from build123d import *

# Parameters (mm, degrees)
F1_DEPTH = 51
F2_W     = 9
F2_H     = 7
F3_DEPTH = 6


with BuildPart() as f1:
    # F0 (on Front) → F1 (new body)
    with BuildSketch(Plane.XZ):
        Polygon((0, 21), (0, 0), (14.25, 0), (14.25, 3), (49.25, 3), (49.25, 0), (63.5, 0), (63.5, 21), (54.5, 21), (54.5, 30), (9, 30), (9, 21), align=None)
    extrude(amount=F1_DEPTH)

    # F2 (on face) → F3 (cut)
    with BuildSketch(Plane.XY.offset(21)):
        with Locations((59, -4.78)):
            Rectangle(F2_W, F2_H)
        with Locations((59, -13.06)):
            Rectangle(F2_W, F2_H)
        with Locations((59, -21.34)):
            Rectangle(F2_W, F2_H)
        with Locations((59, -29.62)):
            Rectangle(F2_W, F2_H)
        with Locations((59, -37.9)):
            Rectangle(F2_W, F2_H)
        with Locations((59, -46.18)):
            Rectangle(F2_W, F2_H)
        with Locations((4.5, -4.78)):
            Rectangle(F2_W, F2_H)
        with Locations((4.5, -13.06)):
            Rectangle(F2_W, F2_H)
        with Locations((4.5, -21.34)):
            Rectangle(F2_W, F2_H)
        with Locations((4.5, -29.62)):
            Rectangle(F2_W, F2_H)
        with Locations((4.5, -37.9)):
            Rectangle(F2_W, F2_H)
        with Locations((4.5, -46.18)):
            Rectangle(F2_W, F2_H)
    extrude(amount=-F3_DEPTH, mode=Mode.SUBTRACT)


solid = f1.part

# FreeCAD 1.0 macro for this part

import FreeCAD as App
import Part
import Sketcher

V = App.Vector

doc = App.newDocument("Part")
body = doc.addObject("PartDesign::Body", "Body")

# Sketch on XZ plane
sketch1 = body.newObject("Sketcher::SketchObject", "Sketch")
sketch1.AttachmentSupport = (doc.getObject("XZ_Plane"), [""])
sketch1.MapMode = "FlatFace"
sketch1.addGeometry(Part.LineSegment(V(0, 21, 0), V(0, 0, 0)), False)
sketch1.addGeometry(Part.LineSegment(V(0, 0, 0), V(14.25, 0, 0)), False)
sketch1.addGeometry(Part.LineSegment(V(14.25, 0, 0), V(14.25, 3, 0)), False)
sketch1.addGeometry(Part.LineSegment(V(14.25, 3, 0), V(49.25, 3, 0)), False)
sketch1.addGeometry(Part.LineSegment(V(49.25, 3, 0), V(49.25, 0, 0)), False)
sketch1.addGeometry(Part.LineSegment(V(49.25, 0, 0), V(63.5, 0, 0)), False)
sketch1.addGeometry(Part.LineSegment(V(63.5, 0, 0), V(63.5, 21, 0)), False)
sketch1.addGeometry(Part.LineSegment(V(63.5, 21, 0), V(54.5, 21, 0)), False)
sketch1.addGeometry(Part.LineSegment(V(54.5, 21, 0), V(54.5, 30, 0)), False)
sketch1.addGeometry(Part.LineSegment(V(54.5, 30, 0), V(9, 30, 0)), False)
sketch1.addGeometry(Part.LineSegment(V(9, 30, 0), V(9, 21, 0)), False)
sketch1.addGeometry(Part.LineSegment(V(9, 21, 0), V(0, 21, 0)), False)
sketch1.addConstraint(Sketcher.Constraint("Coincident", 0, 2, 1, 1))
sketch1.addConstraint(Sketcher.Constraint("Coincident", 1, 2, 2, 1))
sketch1.addConstraint(Sketcher.Constraint("Coincident", 2, 2, 3, 1))
sketch1.addConstraint(Sketcher.Constraint("Coincident", 3, 2, 4, 1))
sketch1.addConstraint(Sketcher.Constraint("Coincident", 4, 2, 5, 1))
sketch1.addConstraint(Sketcher.Constraint("Coincident", 5, 2, 6, 1))
sketch1.addConstraint(Sketcher.Constraint("Coincident", 6, 2, 7, 1))
sketch1.addConstraint(Sketcher.Constraint("Coincident", 7, 2, 8, 1))
sketch1.addConstraint(Sketcher.Constraint("Coincident", 8, 2, 9, 1))
sketch1.addConstraint(Sketcher.Constraint("Coincident", 9, 2, 10, 1))
sketch1.addConstraint(Sketcher.Constraint("Coincident", 10, 2, 11, 1))
sketch1.addConstraint(Sketcher.Constraint("Coincident", 11, 2, 0, 1))
sketch1.addConstraint(Sketcher.Constraint("Vertical", 0))
sketch1.addConstraint(Sketcher.Constraint("Horizontal", 1))
sketch1.addConstraint(Sketcher.Constraint("Vertical", 2))
sketch1.addConstraint(Sketcher.Constraint("Horizontal", 3))
sketch1.addConstraint(Sketcher.Constraint("Vertical", 4))
sketch1.addConstraint(Sketcher.Constraint("Horizontal", 5))
sketch1.addConstraint(Sketcher.Constraint("Vertical", 6))
sketch1.addConstraint(Sketcher.Constraint("Horizontal", 7))
sketch1.addConstraint(Sketcher.Constraint("Vertical", 8))
sketch1.addConstraint(Sketcher.Constraint("Horizontal", 9))
sketch1.addConstraint(Sketcher.Constraint("Vertical", 10))
sketch1.addConstraint(Sketcher.Constraint("Horizontal", 11))
sketch1.addConstraint(Sketcher.Constraint("Coincident", 0, 2, -1, 1))
sketch1.addConstraint(Sketcher.Constraint("PointOnObject", 4, 2, -1))
sketch1.addConstraint(Sketcher.Constraint("Horizontal", 7, 2, 10, 2))
sketch1.addConstraint(Sketcher.Constraint("Equal", 1, 5))
sketch1.addConstraint(Sketcher.Constraint("Equal", 7, 11))
sketch1.addConstraint(Sketcher.Constraint("Equal", 11, 8))
sketch1.addConstraint(Sketcher.Constraint("DistanceX", 3, 1, 3, 2, 35.0))
sketch1.addConstraint(Sketcher.Constraint("DistanceX", 7, 2, 7, 1, 9.0))
sketch1.addConstraint(Sketcher.Constraint("DistanceY", 0, 2, 0, 1, 21.0))
sketch1.addConstraint(Sketcher.Constraint("DistanceY", 2, 1, 2, 2, 3.0))
sketch1.addConstraint(Sketcher.Constraint("DistanceX", 9, 2, 9, 1, 45.5))
pad1 = body.newObject("PartDesign::Pad", "Pad")
pad1.Profile = sketch1
pad1.Length = 51

# Sketch on XY plane
sketch2 = body.newObject("Sketcher::SketchObject", "Sketch001")
sketch2.AttachmentSupport = (doc.getObject("XY_Plane"), [""])
sketch2.MapMode = "FlatFace"
sketch2.AttachmentOffset = App.Placement(V(0, 0, 21), App.Rotation())
sketch2.addGeometry(Part.LineSegment(V(54.5, -1.28, 0), V(54.5, -8.28, 0)), False)
sketch2.addGeometry(Part.LineSegment(V(54.5, -8.28, 0), V(63.5, -8.28, 0)), False)
sketch2.addGeometry(Part.LineSegment(V(63.5, -8.28, 0), V(63.5, -1.28, 0)), False)
sketch2.addGeometry(Part.LineSegment(V(63.5, -1.28, 0), V(54.5, -1.28, 0)), False)
sketch2.addGeometry(Part.LineSegment(V(54.5, -9.56, 0), V(54.5, -16.56, 0)), False)
sketch2.addGeometry(Part.LineSegment(V(54.5, -16.56, 0), V(63.5, -16.56, 0)), False)
sketch2.addGeometry(Part.LineSegment(V(63.5, -16.56, 0), V(63.5, -9.56, 0)), False)
sketch2.addGeometry(Part.LineSegment(V(63.5, -9.56, 0), V(54.5, -9.56, 0)), False)
sketch2.addGeometry(Part.LineSegment(V(54.5, -17.84, 0), V(54.5, -24.84, 0)), False)
sketch2.addGeometry(Part.LineSegment(V(54.5, -24.84, 0), V(63.5, -24.84, 0)), False)
sketch2.addGeometry(Part.LineSegment(V(63.5, -24.84, 0), V(63.5, -17.84, 0)), False)
sketch2.addGeometry(Part.LineSegment(V(63.5, -17.84, 0), V(54.5, -17.84, 0)), False)
sketch2.addGeometry(Part.LineSegment(V(54.5, -26.12, 0), V(54.5, -33.12, 0)), False)
sketch2.addGeometry(Part.LineSegment(V(54.5, -33.12, 0), V(63.5, -33.12, 0)), False)
sketch2.addGeometry(Part.LineSegment(V(63.5, -33.12, 0), V(63.5, -26.12, 0)), False)
sketch2.addGeometry(Part.LineSegment(V(63.5, -26.12, 0), V(54.5, -26.12, 0)), False)
sketch2.addGeometry(Part.LineSegment(V(54.5, -34.4, 0), V(54.5, -41.4, 0)), False)
sketch2.addGeometry(Part.LineSegment(V(54.5, -41.4, 0), V(63.5, -41.4, 0)), False)
sketch2.addGeometry(Part.LineSegment(V(63.5, -41.4, 0), V(63.5, -34.4, 0)), False)
sketch2.addGeometry(Part.LineSegment(V(63.5, -34.4, 0), V(54.5, -34.4, 0)), False)
sketch2.addGeometry(Part.LineSegment(V(54.5, -42.68, 0), V(54.5, -49.68, 0)), False)
sketch2.addGeometry(Part.LineSegment(V(54.5, -49.68, 0), V(63.5, -49.68, 0)), False)
sketch2.addGeometry(Part.LineSegment(V(63.5, -49.68, 0), V(63.5, -42.68, 0)), False)
sketch2.addGeometry(Part.LineSegment(V(63.5, -42.68, 0), V(54.5, -42.68, 0)), False)
sketch2.addGeometry(Part.LineSegment(V(0, -1.28, 0), V(0, -8.28, 0)), False)
sketch2.addGeometry(Part.LineSegment(V(0, -8.28, 0), V(9, -8.28, 0)), False)
sketch2.addGeometry(Part.LineSegment(V(9, -8.28, 0), V(9, -1.28, 0)), False)
sketch2.addGeometry(Part.LineSegment(V(9, -1.28, 0), V(0, -1.28, 0)), False)
sketch2.addGeometry(Part.LineSegment(V(0, -9.56, 0), V(0, -16.56, 0)), False)
sketch2.addGeometry(Part.LineSegment(V(0, -16.56, 0), V(9, -16.56, 0)), False)
sketch2.addGeometry(Part.LineSegment(V(9, -16.56, 0), V(9, -9.56, 0)), False)
sketch2.addGeometry(Part.LineSegment(V(9, -9.56, 0), V(0, -9.56, 0)), False)
sketch2.addGeometry(Part.LineSegment(V(0, -17.84, 0), V(0, -24.84, 0)), False)
sketch2.addGeometry(Part.LineSegment(V(0, -24.84, 0), V(9, -24.84, 0)), False)
sketch2.addGeometry(Part.LineSegment(V(9, -24.84, 0), V(9, -17.84, 0)), False)
sketch2.addGeometry(Part.LineSegment(V(9, -17.84, 0), V(0, -17.84, 0)), False)
sketch2.addGeometry(Part.LineSegment(V(0, -26.12, 0), V(0, -33.12, 0)), False)
sketch2.addGeometry(Part.LineSegment(V(0, -33.12, 0), V(9, -33.12, 0)), False)
sketch2.addGeometry(Part.LineSegment(V(9, -33.12, 0), V(9, -26.12, 0)), False)
sketch2.addGeometry(Part.LineSegment(V(9, -26.12, 0), V(0, -26.12, 0)), False)
sketch2.addGeometry(Part.LineSegment(V(0, -34.4, 0), V(0, -41.4, 0)), False)
sketch2.addGeometry(Part.LineSegment(V(0, -41.4, 0), V(9, -41.4, 0)), False)
sketch2.addGeometry(Part.LineSegment(V(9, -41.4, 0), V(9, -34.4, 0)), False)
sketch2.addGeometry(Part.LineSegment(V(9, -34.4, 0), V(0, -34.4, 0)), False)
sketch2.addGeometry(Part.LineSegment(V(0, -42.68, 0), V(0, -49.68, 0)), False)
sketch2.addGeometry(Part.LineSegment(V(0, -49.68, 0), V(9, -49.68, 0)), False)
sketch2.addGeometry(Part.LineSegment(V(9, -49.68, 0), V(9, -42.68, 0)), False)
sketch2.addGeometry(Part.LineSegment(V(9, -42.68, 0), V(0, -42.68, 0)), False)
sketch2.addConstraint(Sketcher.Constraint("Coincident", 0, 2, 1, 1))
sketch2.addConstraint(Sketcher.Constraint("Coincident", 1, 2, 2, 1))
sketch2.addConstraint(Sketcher.Constraint("Coincident", 2, 2, 3, 1))
sketch2.addConstraint(Sketcher.Constraint("Coincident", 3, 2, 0, 1))
sketch2.addConstraint(Sketcher.Constraint("Coincident", 4, 2, 5, 1))
sketch2.addConstraint(Sketcher.Constraint("Coincident", 5, 2, 6, 1))
sketch2.addConstraint(Sketcher.Constraint("Coincident", 6, 2, 7, 1))
sketch2.addConstraint(Sketcher.Constraint("Coincident", 7, 2, 4, 1))
sketch2.addConstraint(Sketcher.Constraint("Coincident", 8, 2, 9, 1))
sketch2.addConstraint(Sketcher.Constraint("Coincident", 9, 2, 10, 1))
sketch2.addConstraint(Sketcher.Constraint("Coincident", 10, 2, 11, 1))
sketch2.addConstraint(Sketcher.Constraint("Coincident", 11, 2, 8, 1))
sketch2.addConstraint(Sketcher.Constraint("Coincident", 12, 2, 13, 1))
sketch2.addConstraint(Sketcher.Constraint("Coincident", 13, 2, 14, 1))
sketch2.addConstraint(Sketcher.Constraint("Coincident", 14, 2, 15, 1))
sketch2.addConstraint(Sketcher.Constraint("Coincident", 15, 2, 12, 1))
sketch2.addConstraint(Sketcher.Constraint("Coincident", 16, 2, 17, 1))
sketch2.addConstraint(Sketcher.Constraint("Coincident", 17, 2, 18, 1))
sketch2.addConstraint(Sketcher.Constraint("Coincident", 18, 2, 19, 1))
sketch2.addConstraint(Sketcher.Constraint("Coincident", 19, 2, 16, 1))
sketch2.addConstraint(Sketcher.Constraint("Coincident", 20, 2, 21, 1))
sketch2.addConstraint(Sketcher.Constraint("Coincident", 21, 2, 22, 1))
sketch2.addConstraint(Sketcher.Constraint("Coincident", 22, 2, 23, 1))
sketch2.addConstraint(Sketcher.Constraint("Coincident", 23, 2, 20, 1))
sketch2.addConstraint(Sketcher.Constraint("Coincident", 24, 2, 25, 1))
sketch2.addConstraint(Sketcher.Constraint("Coincident", 25, 2, 26, 1))
sketch2.addConstraint(Sketcher.Constraint("Coincident", 26, 2, 27, 1))
sketch2.addConstraint(Sketcher.Constraint("Coincident", 27, 2, 24, 1))
sketch2.addConstraint(Sketcher.Constraint("Coincident", 28, 2, 29, 1))
sketch2.addConstraint(Sketcher.Constraint("Coincident", 29, 2, 30, 1))
sketch2.addConstraint(Sketcher.Constraint("Coincident", 30, 2, 31, 1))
sketch2.addConstraint(Sketcher.Constraint("Coincident", 31, 2, 28, 1))
sketch2.addConstraint(Sketcher.Constraint("Coincident", 32, 2, 33, 1))
sketch2.addConstraint(Sketcher.Constraint("Coincident", 33, 2, 34, 1))
sketch2.addConstraint(Sketcher.Constraint("Coincident", 34, 2, 35, 1))
sketch2.addConstraint(Sketcher.Constraint("Coincident", 35, 2, 32, 1))
sketch2.addConstraint(Sketcher.Constraint("Coincident", 36, 2, 37, 1))
sketch2.addConstraint(Sketcher.Constraint("Coincident", 37, 2, 38, 1))
sketch2.addConstraint(Sketcher.Constraint("Coincident", 38, 2, 39, 1))
sketch2.addConstraint(Sketcher.Constraint("Coincident", 39, 2, 36, 1))
sketch2.addConstraint(Sketcher.Constraint("Coincident", 40, 2, 41, 1))
sketch2.addConstraint(Sketcher.Constraint("Coincident", 41, 2, 42, 1))
sketch2.addConstraint(Sketcher.Constraint("Coincident", 42, 2, 43, 1))
sketch2.addConstraint(Sketcher.Constraint("Coincident", 43, 2, 40, 1))
sketch2.addConstraint(Sketcher.Constraint("Coincident", 44, 2, 45, 1))
sketch2.addConstraint(Sketcher.Constraint("Coincident", 45, 2, 46, 1))
sketch2.addConstraint(Sketcher.Constraint("Coincident", 46, 2, 47, 1))
sketch2.addConstraint(Sketcher.Constraint("Coincident", 47, 2, 44, 1))
sketch2.addConstraint(Sketcher.Constraint("Vertical", 0))
sketch2.addConstraint(Sketcher.Constraint("Horizontal", 1))
sketch2.addConstraint(Sketcher.Constraint("Vertical", 2))
sketch2.addConstraint(Sketcher.Constraint("Horizontal", 3))
sketch2.addConstraint(Sketcher.Constraint("Vertical", 4))
sketch2.addConstraint(Sketcher.Constraint("Horizontal", 5))
sketch2.addConstraint(Sketcher.Constraint("Vertical", 6))
sketch2.addConstraint(Sketcher.Constraint("Horizontal", 7))
sketch2.addConstraint(Sketcher.Constraint("Vertical", 8))
sketch2.addConstraint(Sketcher.Constraint("Horizontal", 9))
sketch2.addConstraint(Sketcher.Constraint("Vertical", 10))
sketch2.addConstraint(Sketcher.Constraint("Horizontal", 11))
sketch2.addConstraint(Sketcher.Constraint("Vertical", 12))
sketch2.addConstraint(Sketcher.Constraint("Horizontal", 13))
sketch2.addConstraint(Sketcher.Constraint("Vertical", 14))
sketch2.addConstraint(Sketcher.Constraint("Horizontal", 15))
sketch2.addConstraint(Sketcher.Constraint("Vertical", 16))
sketch2.addConstraint(Sketcher.Constraint("Horizontal", 17))
sketch2.addConstraint(Sketcher.Constraint("Vertical", 18))
sketch2.addConstraint(Sketcher.Constraint("Horizontal", 19))
sketch2.addConstraint(Sketcher.Constraint("Vertical", 20))
sketch2.addConstraint(Sketcher.Constraint("Horizontal", 21))
sketch2.addConstraint(Sketcher.Constraint("Vertical", 22))
sketch2.addConstraint(Sketcher.Constraint("Horizontal", 23))
sketch2.addConstraint(Sketcher.Constraint("Vertical", 24))
sketch2.addConstraint(Sketcher.Constraint("Horizontal", 25))
sketch2.addConstraint(Sketcher.Constraint("Vertical", 26))
sketch2.addConstraint(Sketcher.Constraint("Horizontal", 27))
sketch2.addConstraint(Sketcher.Constraint("Vertical", 28))
sketch2.addConstraint(Sketcher.Constraint("Horizontal", 29))
sketch2.addConstraint(Sketcher.Constraint("Vertical", 30))
sketch2.addConstraint(Sketcher.Constraint("Horizontal", 31))
sketch2.addConstraint(Sketcher.Constraint("Vertical", 32))
sketch2.addConstraint(Sketcher.Constraint("Horizontal", 33))
sketch2.addConstraint(Sketcher.Constraint("Vertical", 34))
sketch2.addConstraint(Sketcher.Constraint("Horizontal", 35))
sketch2.addConstraint(Sketcher.Constraint("Vertical", 36))
sketch2.addConstraint(Sketcher.Constraint("Horizontal", 37))
sketch2.addConstraint(Sketcher.Constraint("Vertical", 38))
sketch2.addConstraint(Sketcher.Constraint("Horizontal", 39))
sketch2.addConstraint(Sketcher.Constraint("Vertical", 40))
sketch2.addConstraint(Sketcher.Constraint("Horizontal", 41))
sketch2.addConstraint(Sketcher.Constraint("Vertical", 42))
sketch2.addConstraint(Sketcher.Constraint("Horizontal", 43))
sketch2.addConstraint(Sketcher.Constraint("Vertical", 44))
sketch2.addConstraint(Sketcher.Constraint("Horizontal", 45))
sketch2.addConstraint(Sketcher.Constraint("Vertical", 46))
sketch2.addConstraint(Sketcher.Constraint("Horizontal", 47))
sketch2.addConstraint(Sketcher.Constraint("PointOnObject", 24, 2, -2))
sketch2.addConstraint(Sketcher.Constraint("PointOnObject", 28, 2, -2))
sketch2.addConstraint(Sketcher.Constraint("PointOnObject", 32, 2, -2))
sketch2.addConstraint(Sketcher.Constraint("PointOnObject", 36, 2, -2))
sketch2.addConstraint(Sketcher.Constraint("PointOnObject", 40, 2, -2))
sketch2.addConstraint(Sketcher.Constraint("PointOnObject", 44, 2, -2))
sketch2.addConstraint(Sketcher.Constraint("Horizontal", 1, 2, 24, 2))
sketch2.addConstraint(Sketcher.Constraint("Horizontal", 3, 2, 26, 2))
sketch2.addConstraint(Sketcher.Constraint("Horizontal", 5, 2, 28, 2))
sketch2.addConstraint(Sketcher.Constraint("Horizontal", 7, 2, 30, 2))
sketch2.addConstraint(Sketcher.Constraint("Horizontal", 9, 2, 32, 2))
sketch2.addConstraint(Sketcher.Constraint("Horizontal", 11, 2, 34, 2))
sketch2.addConstraint(Sketcher.Constraint("Horizontal", 13, 2, 36, 2))
sketch2.addConstraint(Sketcher.Constraint("Horizontal", 15, 2, 38, 2))
sketch2.addConstraint(Sketcher.Constraint("Horizontal", 17, 2, 40, 2))
sketch2.addConstraint(Sketcher.Constraint("Horizontal", 19, 2, 42, 2))
sketch2.addConstraint(Sketcher.Constraint("Horizontal", 21, 2, 44, 2))
sketch2.addConstraint(Sketcher.Constraint("Horizontal", 23, 2, 46, 2))
sketch2.addConstraint(Sketcher.Constraint("Vertical", 3, 2, 4, 2))
sketch2.addConstraint(Sketcher.Constraint("Vertical", 2, 2, 5, 2))
sketch2.addConstraint(Sketcher.Constraint("Vertical", 7, 2, 8, 2))
sketch2.addConstraint(Sketcher.Constraint("Vertical", 6, 2, 9, 2))
sketch2.addConstraint(Sketcher.Constraint("Vertical", 11, 2, 12, 2))
sketch2.addConstraint(Sketcher.Constraint("Vertical", 10, 2, 13, 2))
sketch2.addConstraint(Sketcher.Constraint("Vertical", 15, 2, 16, 2))
sketch2.addConstraint(Sketcher.Constraint("Vertical", 14, 2, 17, 2))
sketch2.addConstraint(Sketcher.Constraint("Vertical", 19, 2, 20, 2))
sketch2.addConstraint(Sketcher.Constraint("Vertical", 18, 2, 21, 2))
sketch2.addConstraint(Sketcher.Constraint("Vertical", 26, 2, 29, 2))
sketch2.addConstraint(Sketcher.Constraint("Vertical", 30, 2, 33, 2))
sketch2.addConstraint(Sketcher.Constraint("Vertical", 34, 2, 37, 2))
sketch2.addConstraint(Sketcher.Constraint("Vertical", 38, 2, 41, 2))
sketch2.addConstraint(Sketcher.Constraint("Vertical", 42, 2, 45, 2))
sketch2.addConstraint(Sketcher.Constraint("Equal", 23, 25))
sketch2.addConstraint(Sketcher.Constraint("Equal", 2, 4))
sketch2.addConstraint(Sketcher.Constraint("Equal", 6, 8))
sketch2.addConstraint(Sketcher.Constraint("Equal", 10, 12))
sketch2.addConstraint(Sketcher.Constraint("Equal", 14, 16))
sketch2.addConstraint(Sketcher.Constraint("Equal", 18, 20))
sketch2.addConstraint(Sketcher.Constraint("DistanceX", 1, 1, 1, 2, 9.0))
sketch2.addConstraint(Sketcher.Constraint("DistanceY", 0, 2, 0, 1, 7.0))
sketch2.addConstraint(Sketcher.Constraint("DistanceX", -1, 1, 0, 2, 54.5))
sketch2.addConstraint(Sketcher.Constraint("DistanceY", 16, 2, -1, 1, 41.4))
sketch2.addConstraint(Sketcher.Constraint("DistanceY", 0, 2, -1, 1, 8.28))
sketch2.addConstraint(Sketcher.Constraint("DistanceY", 4, 2, -1, 1, 16.56))
sketch2.addConstraint(Sketcher.Constraint("DistanceY", 8, 2, -1, 1, 24.84))
sketch2.addConstraint(Sketcher.Constraint("DistanceY", 12, 2, -1, 1, 33.12))
sketch2.addConstraint(Sketcher.Constraint("DistanceY", 20, 2, -1, 1, 49.68))
pocket1 = body.newObject("PartDesign::Pocket", "Pocket")
pocket1.Profile = sketch2
pocket1.Length = 6

doc.recompute()
